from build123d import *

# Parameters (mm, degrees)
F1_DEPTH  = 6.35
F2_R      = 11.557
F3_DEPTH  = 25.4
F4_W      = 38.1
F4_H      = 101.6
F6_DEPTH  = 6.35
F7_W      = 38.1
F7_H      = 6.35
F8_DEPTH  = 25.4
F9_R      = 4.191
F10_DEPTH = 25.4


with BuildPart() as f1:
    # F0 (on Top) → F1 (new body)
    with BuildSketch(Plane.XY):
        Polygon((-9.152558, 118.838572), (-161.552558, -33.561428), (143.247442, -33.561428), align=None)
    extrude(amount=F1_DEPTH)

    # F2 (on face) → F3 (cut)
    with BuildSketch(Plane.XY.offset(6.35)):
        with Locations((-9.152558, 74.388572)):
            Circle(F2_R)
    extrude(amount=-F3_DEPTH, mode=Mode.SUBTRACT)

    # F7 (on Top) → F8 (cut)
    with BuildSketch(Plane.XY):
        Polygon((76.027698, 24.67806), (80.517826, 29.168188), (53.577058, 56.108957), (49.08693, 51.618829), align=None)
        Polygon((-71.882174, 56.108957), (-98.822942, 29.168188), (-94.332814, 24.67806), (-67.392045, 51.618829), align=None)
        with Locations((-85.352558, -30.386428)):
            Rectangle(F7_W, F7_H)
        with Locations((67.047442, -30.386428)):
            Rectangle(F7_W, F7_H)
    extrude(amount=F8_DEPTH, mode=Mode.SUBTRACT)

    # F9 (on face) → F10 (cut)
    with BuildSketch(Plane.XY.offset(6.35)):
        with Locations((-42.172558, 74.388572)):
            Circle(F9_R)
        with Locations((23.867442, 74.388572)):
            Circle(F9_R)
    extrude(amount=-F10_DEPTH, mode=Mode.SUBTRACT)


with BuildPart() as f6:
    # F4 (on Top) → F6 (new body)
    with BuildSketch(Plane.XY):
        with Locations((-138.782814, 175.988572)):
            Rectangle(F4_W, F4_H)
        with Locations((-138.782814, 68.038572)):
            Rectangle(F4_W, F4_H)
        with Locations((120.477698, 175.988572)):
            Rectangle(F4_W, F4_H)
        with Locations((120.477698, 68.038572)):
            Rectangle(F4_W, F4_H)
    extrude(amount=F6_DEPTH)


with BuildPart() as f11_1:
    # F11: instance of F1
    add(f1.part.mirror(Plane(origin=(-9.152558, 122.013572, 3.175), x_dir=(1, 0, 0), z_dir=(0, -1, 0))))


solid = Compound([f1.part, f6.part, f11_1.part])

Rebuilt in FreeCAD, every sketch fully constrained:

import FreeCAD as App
import Part
import Sketcher

V = App.Vector
Q = App.Units.Quantity

doc = App.newDocument("Part")
body = doc.addObject("PartDesign::Body", "Body")

# Sketch on XY plane
sketch1 = body.newObject("Sketcher::SketchObject", "Sketch")
sketch1.AttachmentSupport = (doc.getObject("XY_Plane"), [""])
sketch1.MapMode = "FlatFace"
sketch1.addGeometry(Part.LineSegment(V(-9, 119, 0), V(-162, -34, 0)), False)
sketch1.addGeometry(Part.LineSegment(V(-162, -34, 0), V(143, -34, 0)), False)
sketch1.addGeometry(Part.LineSegment(V(143, -34, 0), V(-9, 119, 0)), False)
sketch1.addConstraint(Sketcher.Constraint("Coincident", 0, 2, 1, 1))
sketch1.addConstraint(Sketcher.Constraint("Coincident", 1, 2, 2, 1))
sketch1.addConstraint(Sketcher.Constraint("Coincident", 2, 2, 0, 1))
sketch1.addConstraint(Sketcher.Constraint("Horizontal", 1))
sketch1.addConstraint(Sketcher.Constraint("Perpendicular", 0, 2))
sketch1.addConstraint(Sketcher.Constraint("Equal", 0, 2))
sketch1.addConstraint(Sketcher.Constraint("DistanceX", 1, 1, 1, 2, Q("12 in")))
sketch1.addConstraint(Sketcher.Constraint("DistanceX", 0, 2, -1, 1, 161.552558))
sketch1.addConstraint(Sketcher.Constraint("DistanceY", -1, 1, 2, 2, 118.838572))
pad1 = body.newObject("PartDesign::Pad", "Pad")
pad1.Profile = sketch1
pad1.Length = Q("0.25 in")

# Sketch on XY plane
sketch2 = body.newObject("Sketcher::SketchObject", "Sketch001")
sketch2.AttachmentSupport = (doc.getObject("XY_Plane"), [""])
sketch2.MapMode = "FlatFace"
sketch2.AttachmentOffset = App.Placement(V(0, 0, 0.25 * 25.4), App.Rotation())
sketch2.addGeometry(Part.Circle(V(-9, 74, 0), V(0, 0, 1), 12), False)
sketch2.addConstraint(Sketcher.Constraint("Diameter", 0, Q("0.91 in")))
sketch2.addConstraint(Sketcher.Constraint("DistanceX", 0, 3, -1, 1, 9.152558))
sketch2.addConstraint(Sketcher.Constraint("DistanceY", -1, 1, 0, 3, 74.388572))
pocket1 = body.newObject("PartDesign::Pocket", "Pocket")
pocket1.Profile = sketch2
pocket1.Length = Q("1 in")

# Sketch on XY plane
sketch3 = body.newObject("Sketcher::SketchObject", "Sketch002")
sketch3.AttachmentSupport = (doc.getObject("XY_Plane"), [""])
sketch3.MapMode = "FlatFace"
sketch3.addGeometry(Part.LineSegment(V(76, 25, 0), V(81, 29, 0)), False)
sketch3.addGeometry(Part.LineSegment(V(81, 29, 0), V(54, 56, 0)), False)
sketch3.addGeometry(Part.LineSegment(V(54, 56, 0), V(49, 52, 0)), False)
sketch3.addGeometry(Part.LineSegment(V(49, 52, 0), V(76, 25, 0)), False)
sketch3.addGeometry(Part.LineSegment(V(-72, 56, 0), V(-99, 29, 0)), False)
sketch3.addGeometry(Part.LineSegment(V(-99, 29, 0), V(-94, 25, 0)), False)
sketch3.addGeometry(Part.LineSegment(V(-94, 25, 0), V(-67, 52, 0)), False)
sketch3.addGeometry(Part.LineSegment(V(-67, 52, 0), V(-72, 56, 0)), False)
sketch3.addGeometry(Part.LineSegment(V(-104, -27, 0), V(-104, -34, 0)), False)
sketch3.addGeometry(Part.LineSegment(V(-104, -34, 0), V(-66, -34, 0)), False)
sketch3.addGeometry(Part.LineSegment(V(-66, -34, 0), V(-66, -27, 0)), False)
sketch3.addGeometry(Part.LineSegment(V(-66, -27, 0), V(-104, -27, 0)), False)
sketch3.addGeometry(Part.LineSegment(V(48, -27, 0), V(48, -34, 0)), False)
sketch3.addGeometry(Part.LineSegment(V(48, -34, 0), V(86, -34, 0)), False)
sketch3.addGeometry(Part.LineSegment(V(86, -34, 0), V(86, -27, 0)), False)
sketch3.addGeometry(Part.LineSegment(V(86, -27, 0), V(48, -27, 0)), False)
sketch3.addConstraint(Sketcher.Constraint("Coincident", 0, 2, 1, 1))
sketch3.addConstraint(Sketcher.Constraint("Coincident", 1, 2, 2, 1))
sketch3.addConstraint(Sketcher.Constraint("Coincident", 2, 2, 3, 1))
sketch3.addConstraint(Sketcher.Constraint("Coincident", 3, 2, 0, 1))
sketch3.addConstraint(Sketcher.Constraint("Coincident", 4, 2, 5, 1))
sketch3.addConstraint(Sketcher.Constraint("Coincident", 5, 2, 6, 1))
sketch3.addConstraint(Sketcher.Constraint("Coincident", 6, 2, 7, 1))
sketch3.addConstraint(Sketcher.Constraint("Coincident", 7, 2, 4, 1))
sketch3.addConstraint(Sketcher.Constraint("Coincident", 8, 2, 9, 1))
sketch3.addConstraint(Sketcher.Constraint("Coincident", 9, 2, 10, 1))
sketch3.addConstraint(Sketcher.Constraint("Coincident", 10, 2, 11, 1))
sketch3.addConstraint(Sketcher.Constraint("Coincident", 11, 2, 8, 1))
sketch3.addConstraint(Sketcher.Constraint("Coincident", 12, 2, 13, 1))
sketch3.addConstraint(Sketcher.Constraint("Coincident", 13, 2, 14, 1))
sketch3.addConstraint(Sketcher.Constraint("Coincident", 14, 2, 15, 1))
sketch3.addConstraint(Sketcher.Constraint("Coincident", 15, 2, 12, 1))
sketch3.addConstraint(Sketcher.Constraint("Vertical", 8))
sketch3.addConstraint(Sketcher.Constraint("Horizontal", 9))
sketch3.addConstraint(Sketcher.Constraint("Vertical", 10))
sketch3.addConstraint(Sketcher.Constraint("Horizontal", 11))
sketch3.addConstraint(Sketcher.Constraint("Vertical", 12))
sketch3.addConstraint(Sketcher.Constraint("Horizontal", 13))
sketch3.addConstraint(Sketcher.Constraint("Vertical", 14))
sketch3.addConstraint(Sketcher.Constraint("Horizontal", 15))
sketch3.addConstraint(Sketcher.Constraint("Perpendicular", 0, 1))
sketch3.addConstraint(Sketcher.Constraint("Perpendicular", 1, 2))
sketch3.addConstraint(Sketcher.Constraint("Perpendicular", 2, 3))
sketch3.addConstraint(Sketcher.Constraint("Perpendicular", 3, 4))
sketch3.addConstraint(Sketcher.Constraint("Perpendicular", 4, 5))
sketch3.addConstraint(Sketcher.Constraint("Perpendicular", 5, 6))
sketch3.addConstraint(Sketcher.Constraint("Perpendicular", 6, 7))
sketch3.addConstraint(Sketcher.Constraint("Horizontal", 0, 2, 4, 2))
sketch3.addConstraint(Sketcher.Constraint("Horizontal", 3, 2, 5, 2))
sketch3.addConstraint(Sketcher.Constraint("Horizontal", 2, 2, 6, 2))
sketch3.addConstraint(Sketcher.Constraint("Horizontal", 9, 2, 12, 2))
sketch3.addConstraint(Sketcher.Constraint("Horizontal", 11, 2, 14, 2))
sketch3.addConstraint(Sketcher.Constraint("Equal", 11, 13))
sketch3.addConstraint(Sketcher.Constraint("Equal", 3, 4))
sketch3.addConstraint(Sketcher.Constraint("DistanceX", 9, 1, 9, 2, Q("1.5 in")))
sketch3.addConstraint(Sketcher.Constraint("DistanceX", 4, 2, 1, 2, Q("6 in")))
sketch3.addConstraint(Sketcher.Constraint("Distance", 1, Q("1.5 in")))
sketch3.addConstraint(Sketcher.Constraint("DistanceY", 8, 2, 8, 1, Q("0.25 in")))
sketch3.addConstraint(Sketcher.Constraint("DistanceX", 9, 2, 12, 2, Q("4.5 in")))
sketch3.addConstraint(Sketcher.Constraint("Distance", 0, Q("0.25 in")))
sketch3.addConstraint(Sketcher.Constraint("DistanceX", -1, 1, 3, 2, 76.027698))
sketch3.addConstraint(Sketcher.Constraint("DistanceY", -1, 1, 0, 2, 29.168188))
sketch3.addConstraint(Sketcher.Constraint("DistanceX", 8, 2, -1, 1, 104.402558))
sketch3.addConstraint(Sketcher.Constraint("DistanceY", 10, 2, -1, 1, 27.211428))
pocket2 = body.newObject("PartDesign::Pocket", "Pocket001")
pocket2.Profile = sketch3
pocket2.Length = Q("1 in")
pocket2.Reversed = True

# Sketch on XY plane
sketch4 = body.newObject("Sketcher::SketchObject", "Sketch003")
sketch4.AttachmentSupport = (doc.getObject("XY_Plane"), [""])
sketch4.MapMode = "FlatFace"
sketch4.AttachmentOffset = App.Placement(V(0, 0, 0.25 * 25.4), App.Rotation())
sketch4.addGeometry(Part.Circle(V(-42.2, 74.4, 0), V(0, 0, 1), 4.2), False)
sketch4.addGeometry(Part.Circle(V(23.9, 74.4, 0), V(0, 0, 1), 4.2), False)
sketch4.addConstraint(Sketcher.Constraint("Equal", 0, 1))
sketch4.addConstraint(Sketcher.Constraint("Horizontal", 0, 3, 1, 3))
sketch4.addConstraint(Sketcher.Constraint("Diameter", 0, Q("0.33 in")))
sketch4.addConstraint(Sketcher.Constraint("DistanceX", 0, 3, 1, 3, Q("2.6 in")))
sketch4.addConstraint(Sketcher.Constraint("DistanceX", 0, 3, -1, 1, 42.172558))
sketch4.addConstraint(Sketcher.Constraint("DistanceY", -1, 1, 0, 3, 74.388572))
pocket3 = body.newObject("PartDesign::Pocket", "Pocket002")
pocket3.Profile = sketch4
pocket3.Length = Q("1 in")
body2 = doc.addObject("PartDesign::Body", "Body001")
body2.AllowCompound = True

# Sketch on XY plane
sketch5 = body2.newObject("Sketcher::SketchObject", "Sketch004")
sketch5.AttachmentSupport = (doc.getObject("XY_Plane001"), [""])
sketch5.MapMode = "FlatFace"
sketch5.addGeometry(Part.LineSegment(V(-158, 227, 0), V(-158, 125, 0)), False)
sketch5.addGeometry(Part.LineSegment(V(-158, 125, 0), V(-120, 125, 0)), False)
sketch5.addGeometry(Part.LineSegment(V(-120, 125, 0), V(-120, 227, 0)), False)
sketch5.addGeometry(Part.LineSegment(V(-120, 227, 0), V(-158, 227, 0)), False)
sketch5.addGeometry(Part.LineSegment(V(-158, 119, 0), V(-158, 17, 0)), False)
sketch5.addGeometry(Part.LineSegment(V(-158, 17, 0), V(-120, 17, 0)), False)
sketch5.addGeometry(Part.LineSegment(V(-120, 17, 0), V(-120, 119, 0)), False)
sketch5.addGeometry(Part.LineSegment(V(-120, 119, 0), V(-158, 119, 0)), False)
sketch5.addGeometry(Part.LineSegment(V(101, 227, 0), V(101, 125, 0)), False)
sketch5.addGeometry(Part.LineSegment(V(101, 125, 0), V(140, 125, 0)), False)
sketch5.addGeometry(Part.LineSegment(V(140, 125, 0), V(140, 227, 0)), False)
sketch5.addGeometry(Part.LineSegment(V(140, 227, 0), V(101, 227, 0)), False)
sketch5.addGeometry(Part.LineSegment(V(101, 119, 0), V(101, 17, 0)), False)
sketch5.addGeometry(Part.LineSegment(V(101, 17, 0), V(140, 17, 0)), False)
sketch5.addGeometry(Part.LineSegment(V(140, 17, 0), V(140, 119, 0)), False)
sketch5.addGeometry(Part.LineSegment(V(140, 119, 0), V(101, 119, 0)), False)
sketch5.addConstraint(Sketcher.Constraint("Coincident", 0, 2, 1, 1))
sketch5.addConstraint(Sketcher.Constraint("Coincident", 1, 2, 2, 1))
sketch5.addConstraint(Sketcher.Constraint("Coincident", 2, 2, 3, 1))
sketch5.addConstraint(Sketcher.Constraint("Coincident", 3, 2, 0, 1))
sketch5.addConstraint(Sketcher.Constraint("Coincident", 4, 2, 5, 1))
sketch5.addConstraint(Sketcher.Constraint("Coincident", 5, 2, 6, 1))
sketch5.addConstraint(Sketcher.Constraint("Coincident", 6, 2, 7, 1))
sketch5.addConstraint(Sketcher.Constraint("Coincident", 7, 2, 4, 1))
sketch5.addConstraint(Sketcher.Constraint("Coincident", 8, 2, 9, 1))
sketch5.addConstraint(Sketcher.Constraint("Coincident", 9, 2, 10, 1))
sketch5.addConstraint(Sketcher.Constraint("Coincident", 10, 2, 11, 1))
sketch5.addConstraint(Sketcher.Constraint("Coincident", 11, 2, 8, 1))
sketch5.addConstraint(Sketcher.Constraint("Coincident", 12, 2, 13, 1))
sketch5.addConstraint(Sketcher.Constraint("Coincident", 13, 2, 14, 1))
sketch5.addConstraint(Sketcher.Constraint("Coincident", 14, 2, 15, 1))
sketch5.addConstraint(Sketcher.Constraint("Coincident", 15, 2, 12, 1))
sketch5.addConstraint(Sketcher.Constraint("Vertical", 0))
sketch5.addConstraint(Sketcher.Constraint("Horizontal", 1))
sketch5.addConstraint(Sketcher.Constraint("Vertical", 2))
sketch5.addConstraint(Sketcher.Constraint("Horizontal", 3))
sketch5.addConstraint(Sketcher.Constraint("Vertical", 4))
sketch5.addConstraint(Sketcher.Constraint("Horizontal", 5))
sketch5.addConstraint(Sketcher.Constraint("Vertical", 6))
sketch5.addConstraint(Sketcher.Constraint("Horizontal", 7))
sketch5.addConstraint(Sketcher.Constraint("Vertical", 8))
sketch5.addConstraint(Sketcher.Constraint("Horizontal", 9))
sketch5.addConstraint(Sketcher.Constraint("Vertical", 10))
sketch5.addConstraint(Sketcher.Constraint("Horizontal", 11))
sketch5.addConstraint(Sketcher.Constraint("Vertical", 12))
sketch5.addConstraint(Sketcher.Constraint("Horizontal", 13))
sketch5.addConstraint(Sketcher.Constraint("Vertical", 14))
sketch5.addConstraint(Sketcher.Constraint("Horizontal", 15))
sketch5.addConstraint(Sketcher.Constraint("Horizontal", 1, 2, 8, 2))
sketch5.addConstraint(Sketcher.Constraint("Horizontal", 3, 2, 10, 2))
sketch5.addConstraint(Sketcher.Constraint("Horizontal", 5, 2, 12, 2))
sketch5.addConstraint(Sketcher.Constraint("Horizontal", 7, 2, 14, 2))
sketch5.addConstraint(Sketcher.Constraint("Vertical", 3, 2, 4, 2))
sketch5.addConstraint(Sketcher.Constraint("Vertical", 2, 2, 5, 2))
sketch5.addConstraint(Sketcher.Constraint("Vertical", 11, 2, 12, 2))
sketch5.addConstraint(Sketcher.Constraint("Vertical", 10, 2, 13, 2))
sketch5.addConstraint(Sketcher.Constraint("Equal", 7, 9))
sketch5.addConstraint(Sketcher.Constraint("Equal", 2, 4))
sketch5.addConstraint(Sketcher.Constraint("DistanceY", 0, 2, 0, 1, Q("4 in")))
sketch5.addConstraint(Sketcher.Constraint("DistanceX", 1, 1, 1, 2, Q("1.5 in")))
sketch5.addConstraint(Sketcher.Constraint("DistanceY", 4, 2, 0, 2, Q("4.25 in")))
sketch5.addConstraint(Sketcher.Constraint("DistanceX", -1, 1, 8, 2, 101.427698))
sketch5.addConstraint(Sketcher.Constraint("DistanceY", -1, 1, 0, 2, 125.188572))
sketch5.addConstraint(Sketcher.Constraint("DistanceX", 0, 2, 8, 2, 259.260512))
pad2 = body2.newObject("PartDesign::Pad", "Pad001")
pad2.Profile = sketch5
pad2.Length = Q("0.25 in")
body3 = doc.addObject("PartDesign::Body", "Body002")
doc.recompute()

mirroring = doc.addObject("Part::Mirroring", "Mirroring")
mirroring.Source = body
mirroring.Base = V(-9.152558, 122.013572, 3.175)
mirroring.Normal = V(0, -1, 0)
body3.BaseFeature = mirroring
doc.recompute()
mirroring.Visibility = False

doc.recompute()
